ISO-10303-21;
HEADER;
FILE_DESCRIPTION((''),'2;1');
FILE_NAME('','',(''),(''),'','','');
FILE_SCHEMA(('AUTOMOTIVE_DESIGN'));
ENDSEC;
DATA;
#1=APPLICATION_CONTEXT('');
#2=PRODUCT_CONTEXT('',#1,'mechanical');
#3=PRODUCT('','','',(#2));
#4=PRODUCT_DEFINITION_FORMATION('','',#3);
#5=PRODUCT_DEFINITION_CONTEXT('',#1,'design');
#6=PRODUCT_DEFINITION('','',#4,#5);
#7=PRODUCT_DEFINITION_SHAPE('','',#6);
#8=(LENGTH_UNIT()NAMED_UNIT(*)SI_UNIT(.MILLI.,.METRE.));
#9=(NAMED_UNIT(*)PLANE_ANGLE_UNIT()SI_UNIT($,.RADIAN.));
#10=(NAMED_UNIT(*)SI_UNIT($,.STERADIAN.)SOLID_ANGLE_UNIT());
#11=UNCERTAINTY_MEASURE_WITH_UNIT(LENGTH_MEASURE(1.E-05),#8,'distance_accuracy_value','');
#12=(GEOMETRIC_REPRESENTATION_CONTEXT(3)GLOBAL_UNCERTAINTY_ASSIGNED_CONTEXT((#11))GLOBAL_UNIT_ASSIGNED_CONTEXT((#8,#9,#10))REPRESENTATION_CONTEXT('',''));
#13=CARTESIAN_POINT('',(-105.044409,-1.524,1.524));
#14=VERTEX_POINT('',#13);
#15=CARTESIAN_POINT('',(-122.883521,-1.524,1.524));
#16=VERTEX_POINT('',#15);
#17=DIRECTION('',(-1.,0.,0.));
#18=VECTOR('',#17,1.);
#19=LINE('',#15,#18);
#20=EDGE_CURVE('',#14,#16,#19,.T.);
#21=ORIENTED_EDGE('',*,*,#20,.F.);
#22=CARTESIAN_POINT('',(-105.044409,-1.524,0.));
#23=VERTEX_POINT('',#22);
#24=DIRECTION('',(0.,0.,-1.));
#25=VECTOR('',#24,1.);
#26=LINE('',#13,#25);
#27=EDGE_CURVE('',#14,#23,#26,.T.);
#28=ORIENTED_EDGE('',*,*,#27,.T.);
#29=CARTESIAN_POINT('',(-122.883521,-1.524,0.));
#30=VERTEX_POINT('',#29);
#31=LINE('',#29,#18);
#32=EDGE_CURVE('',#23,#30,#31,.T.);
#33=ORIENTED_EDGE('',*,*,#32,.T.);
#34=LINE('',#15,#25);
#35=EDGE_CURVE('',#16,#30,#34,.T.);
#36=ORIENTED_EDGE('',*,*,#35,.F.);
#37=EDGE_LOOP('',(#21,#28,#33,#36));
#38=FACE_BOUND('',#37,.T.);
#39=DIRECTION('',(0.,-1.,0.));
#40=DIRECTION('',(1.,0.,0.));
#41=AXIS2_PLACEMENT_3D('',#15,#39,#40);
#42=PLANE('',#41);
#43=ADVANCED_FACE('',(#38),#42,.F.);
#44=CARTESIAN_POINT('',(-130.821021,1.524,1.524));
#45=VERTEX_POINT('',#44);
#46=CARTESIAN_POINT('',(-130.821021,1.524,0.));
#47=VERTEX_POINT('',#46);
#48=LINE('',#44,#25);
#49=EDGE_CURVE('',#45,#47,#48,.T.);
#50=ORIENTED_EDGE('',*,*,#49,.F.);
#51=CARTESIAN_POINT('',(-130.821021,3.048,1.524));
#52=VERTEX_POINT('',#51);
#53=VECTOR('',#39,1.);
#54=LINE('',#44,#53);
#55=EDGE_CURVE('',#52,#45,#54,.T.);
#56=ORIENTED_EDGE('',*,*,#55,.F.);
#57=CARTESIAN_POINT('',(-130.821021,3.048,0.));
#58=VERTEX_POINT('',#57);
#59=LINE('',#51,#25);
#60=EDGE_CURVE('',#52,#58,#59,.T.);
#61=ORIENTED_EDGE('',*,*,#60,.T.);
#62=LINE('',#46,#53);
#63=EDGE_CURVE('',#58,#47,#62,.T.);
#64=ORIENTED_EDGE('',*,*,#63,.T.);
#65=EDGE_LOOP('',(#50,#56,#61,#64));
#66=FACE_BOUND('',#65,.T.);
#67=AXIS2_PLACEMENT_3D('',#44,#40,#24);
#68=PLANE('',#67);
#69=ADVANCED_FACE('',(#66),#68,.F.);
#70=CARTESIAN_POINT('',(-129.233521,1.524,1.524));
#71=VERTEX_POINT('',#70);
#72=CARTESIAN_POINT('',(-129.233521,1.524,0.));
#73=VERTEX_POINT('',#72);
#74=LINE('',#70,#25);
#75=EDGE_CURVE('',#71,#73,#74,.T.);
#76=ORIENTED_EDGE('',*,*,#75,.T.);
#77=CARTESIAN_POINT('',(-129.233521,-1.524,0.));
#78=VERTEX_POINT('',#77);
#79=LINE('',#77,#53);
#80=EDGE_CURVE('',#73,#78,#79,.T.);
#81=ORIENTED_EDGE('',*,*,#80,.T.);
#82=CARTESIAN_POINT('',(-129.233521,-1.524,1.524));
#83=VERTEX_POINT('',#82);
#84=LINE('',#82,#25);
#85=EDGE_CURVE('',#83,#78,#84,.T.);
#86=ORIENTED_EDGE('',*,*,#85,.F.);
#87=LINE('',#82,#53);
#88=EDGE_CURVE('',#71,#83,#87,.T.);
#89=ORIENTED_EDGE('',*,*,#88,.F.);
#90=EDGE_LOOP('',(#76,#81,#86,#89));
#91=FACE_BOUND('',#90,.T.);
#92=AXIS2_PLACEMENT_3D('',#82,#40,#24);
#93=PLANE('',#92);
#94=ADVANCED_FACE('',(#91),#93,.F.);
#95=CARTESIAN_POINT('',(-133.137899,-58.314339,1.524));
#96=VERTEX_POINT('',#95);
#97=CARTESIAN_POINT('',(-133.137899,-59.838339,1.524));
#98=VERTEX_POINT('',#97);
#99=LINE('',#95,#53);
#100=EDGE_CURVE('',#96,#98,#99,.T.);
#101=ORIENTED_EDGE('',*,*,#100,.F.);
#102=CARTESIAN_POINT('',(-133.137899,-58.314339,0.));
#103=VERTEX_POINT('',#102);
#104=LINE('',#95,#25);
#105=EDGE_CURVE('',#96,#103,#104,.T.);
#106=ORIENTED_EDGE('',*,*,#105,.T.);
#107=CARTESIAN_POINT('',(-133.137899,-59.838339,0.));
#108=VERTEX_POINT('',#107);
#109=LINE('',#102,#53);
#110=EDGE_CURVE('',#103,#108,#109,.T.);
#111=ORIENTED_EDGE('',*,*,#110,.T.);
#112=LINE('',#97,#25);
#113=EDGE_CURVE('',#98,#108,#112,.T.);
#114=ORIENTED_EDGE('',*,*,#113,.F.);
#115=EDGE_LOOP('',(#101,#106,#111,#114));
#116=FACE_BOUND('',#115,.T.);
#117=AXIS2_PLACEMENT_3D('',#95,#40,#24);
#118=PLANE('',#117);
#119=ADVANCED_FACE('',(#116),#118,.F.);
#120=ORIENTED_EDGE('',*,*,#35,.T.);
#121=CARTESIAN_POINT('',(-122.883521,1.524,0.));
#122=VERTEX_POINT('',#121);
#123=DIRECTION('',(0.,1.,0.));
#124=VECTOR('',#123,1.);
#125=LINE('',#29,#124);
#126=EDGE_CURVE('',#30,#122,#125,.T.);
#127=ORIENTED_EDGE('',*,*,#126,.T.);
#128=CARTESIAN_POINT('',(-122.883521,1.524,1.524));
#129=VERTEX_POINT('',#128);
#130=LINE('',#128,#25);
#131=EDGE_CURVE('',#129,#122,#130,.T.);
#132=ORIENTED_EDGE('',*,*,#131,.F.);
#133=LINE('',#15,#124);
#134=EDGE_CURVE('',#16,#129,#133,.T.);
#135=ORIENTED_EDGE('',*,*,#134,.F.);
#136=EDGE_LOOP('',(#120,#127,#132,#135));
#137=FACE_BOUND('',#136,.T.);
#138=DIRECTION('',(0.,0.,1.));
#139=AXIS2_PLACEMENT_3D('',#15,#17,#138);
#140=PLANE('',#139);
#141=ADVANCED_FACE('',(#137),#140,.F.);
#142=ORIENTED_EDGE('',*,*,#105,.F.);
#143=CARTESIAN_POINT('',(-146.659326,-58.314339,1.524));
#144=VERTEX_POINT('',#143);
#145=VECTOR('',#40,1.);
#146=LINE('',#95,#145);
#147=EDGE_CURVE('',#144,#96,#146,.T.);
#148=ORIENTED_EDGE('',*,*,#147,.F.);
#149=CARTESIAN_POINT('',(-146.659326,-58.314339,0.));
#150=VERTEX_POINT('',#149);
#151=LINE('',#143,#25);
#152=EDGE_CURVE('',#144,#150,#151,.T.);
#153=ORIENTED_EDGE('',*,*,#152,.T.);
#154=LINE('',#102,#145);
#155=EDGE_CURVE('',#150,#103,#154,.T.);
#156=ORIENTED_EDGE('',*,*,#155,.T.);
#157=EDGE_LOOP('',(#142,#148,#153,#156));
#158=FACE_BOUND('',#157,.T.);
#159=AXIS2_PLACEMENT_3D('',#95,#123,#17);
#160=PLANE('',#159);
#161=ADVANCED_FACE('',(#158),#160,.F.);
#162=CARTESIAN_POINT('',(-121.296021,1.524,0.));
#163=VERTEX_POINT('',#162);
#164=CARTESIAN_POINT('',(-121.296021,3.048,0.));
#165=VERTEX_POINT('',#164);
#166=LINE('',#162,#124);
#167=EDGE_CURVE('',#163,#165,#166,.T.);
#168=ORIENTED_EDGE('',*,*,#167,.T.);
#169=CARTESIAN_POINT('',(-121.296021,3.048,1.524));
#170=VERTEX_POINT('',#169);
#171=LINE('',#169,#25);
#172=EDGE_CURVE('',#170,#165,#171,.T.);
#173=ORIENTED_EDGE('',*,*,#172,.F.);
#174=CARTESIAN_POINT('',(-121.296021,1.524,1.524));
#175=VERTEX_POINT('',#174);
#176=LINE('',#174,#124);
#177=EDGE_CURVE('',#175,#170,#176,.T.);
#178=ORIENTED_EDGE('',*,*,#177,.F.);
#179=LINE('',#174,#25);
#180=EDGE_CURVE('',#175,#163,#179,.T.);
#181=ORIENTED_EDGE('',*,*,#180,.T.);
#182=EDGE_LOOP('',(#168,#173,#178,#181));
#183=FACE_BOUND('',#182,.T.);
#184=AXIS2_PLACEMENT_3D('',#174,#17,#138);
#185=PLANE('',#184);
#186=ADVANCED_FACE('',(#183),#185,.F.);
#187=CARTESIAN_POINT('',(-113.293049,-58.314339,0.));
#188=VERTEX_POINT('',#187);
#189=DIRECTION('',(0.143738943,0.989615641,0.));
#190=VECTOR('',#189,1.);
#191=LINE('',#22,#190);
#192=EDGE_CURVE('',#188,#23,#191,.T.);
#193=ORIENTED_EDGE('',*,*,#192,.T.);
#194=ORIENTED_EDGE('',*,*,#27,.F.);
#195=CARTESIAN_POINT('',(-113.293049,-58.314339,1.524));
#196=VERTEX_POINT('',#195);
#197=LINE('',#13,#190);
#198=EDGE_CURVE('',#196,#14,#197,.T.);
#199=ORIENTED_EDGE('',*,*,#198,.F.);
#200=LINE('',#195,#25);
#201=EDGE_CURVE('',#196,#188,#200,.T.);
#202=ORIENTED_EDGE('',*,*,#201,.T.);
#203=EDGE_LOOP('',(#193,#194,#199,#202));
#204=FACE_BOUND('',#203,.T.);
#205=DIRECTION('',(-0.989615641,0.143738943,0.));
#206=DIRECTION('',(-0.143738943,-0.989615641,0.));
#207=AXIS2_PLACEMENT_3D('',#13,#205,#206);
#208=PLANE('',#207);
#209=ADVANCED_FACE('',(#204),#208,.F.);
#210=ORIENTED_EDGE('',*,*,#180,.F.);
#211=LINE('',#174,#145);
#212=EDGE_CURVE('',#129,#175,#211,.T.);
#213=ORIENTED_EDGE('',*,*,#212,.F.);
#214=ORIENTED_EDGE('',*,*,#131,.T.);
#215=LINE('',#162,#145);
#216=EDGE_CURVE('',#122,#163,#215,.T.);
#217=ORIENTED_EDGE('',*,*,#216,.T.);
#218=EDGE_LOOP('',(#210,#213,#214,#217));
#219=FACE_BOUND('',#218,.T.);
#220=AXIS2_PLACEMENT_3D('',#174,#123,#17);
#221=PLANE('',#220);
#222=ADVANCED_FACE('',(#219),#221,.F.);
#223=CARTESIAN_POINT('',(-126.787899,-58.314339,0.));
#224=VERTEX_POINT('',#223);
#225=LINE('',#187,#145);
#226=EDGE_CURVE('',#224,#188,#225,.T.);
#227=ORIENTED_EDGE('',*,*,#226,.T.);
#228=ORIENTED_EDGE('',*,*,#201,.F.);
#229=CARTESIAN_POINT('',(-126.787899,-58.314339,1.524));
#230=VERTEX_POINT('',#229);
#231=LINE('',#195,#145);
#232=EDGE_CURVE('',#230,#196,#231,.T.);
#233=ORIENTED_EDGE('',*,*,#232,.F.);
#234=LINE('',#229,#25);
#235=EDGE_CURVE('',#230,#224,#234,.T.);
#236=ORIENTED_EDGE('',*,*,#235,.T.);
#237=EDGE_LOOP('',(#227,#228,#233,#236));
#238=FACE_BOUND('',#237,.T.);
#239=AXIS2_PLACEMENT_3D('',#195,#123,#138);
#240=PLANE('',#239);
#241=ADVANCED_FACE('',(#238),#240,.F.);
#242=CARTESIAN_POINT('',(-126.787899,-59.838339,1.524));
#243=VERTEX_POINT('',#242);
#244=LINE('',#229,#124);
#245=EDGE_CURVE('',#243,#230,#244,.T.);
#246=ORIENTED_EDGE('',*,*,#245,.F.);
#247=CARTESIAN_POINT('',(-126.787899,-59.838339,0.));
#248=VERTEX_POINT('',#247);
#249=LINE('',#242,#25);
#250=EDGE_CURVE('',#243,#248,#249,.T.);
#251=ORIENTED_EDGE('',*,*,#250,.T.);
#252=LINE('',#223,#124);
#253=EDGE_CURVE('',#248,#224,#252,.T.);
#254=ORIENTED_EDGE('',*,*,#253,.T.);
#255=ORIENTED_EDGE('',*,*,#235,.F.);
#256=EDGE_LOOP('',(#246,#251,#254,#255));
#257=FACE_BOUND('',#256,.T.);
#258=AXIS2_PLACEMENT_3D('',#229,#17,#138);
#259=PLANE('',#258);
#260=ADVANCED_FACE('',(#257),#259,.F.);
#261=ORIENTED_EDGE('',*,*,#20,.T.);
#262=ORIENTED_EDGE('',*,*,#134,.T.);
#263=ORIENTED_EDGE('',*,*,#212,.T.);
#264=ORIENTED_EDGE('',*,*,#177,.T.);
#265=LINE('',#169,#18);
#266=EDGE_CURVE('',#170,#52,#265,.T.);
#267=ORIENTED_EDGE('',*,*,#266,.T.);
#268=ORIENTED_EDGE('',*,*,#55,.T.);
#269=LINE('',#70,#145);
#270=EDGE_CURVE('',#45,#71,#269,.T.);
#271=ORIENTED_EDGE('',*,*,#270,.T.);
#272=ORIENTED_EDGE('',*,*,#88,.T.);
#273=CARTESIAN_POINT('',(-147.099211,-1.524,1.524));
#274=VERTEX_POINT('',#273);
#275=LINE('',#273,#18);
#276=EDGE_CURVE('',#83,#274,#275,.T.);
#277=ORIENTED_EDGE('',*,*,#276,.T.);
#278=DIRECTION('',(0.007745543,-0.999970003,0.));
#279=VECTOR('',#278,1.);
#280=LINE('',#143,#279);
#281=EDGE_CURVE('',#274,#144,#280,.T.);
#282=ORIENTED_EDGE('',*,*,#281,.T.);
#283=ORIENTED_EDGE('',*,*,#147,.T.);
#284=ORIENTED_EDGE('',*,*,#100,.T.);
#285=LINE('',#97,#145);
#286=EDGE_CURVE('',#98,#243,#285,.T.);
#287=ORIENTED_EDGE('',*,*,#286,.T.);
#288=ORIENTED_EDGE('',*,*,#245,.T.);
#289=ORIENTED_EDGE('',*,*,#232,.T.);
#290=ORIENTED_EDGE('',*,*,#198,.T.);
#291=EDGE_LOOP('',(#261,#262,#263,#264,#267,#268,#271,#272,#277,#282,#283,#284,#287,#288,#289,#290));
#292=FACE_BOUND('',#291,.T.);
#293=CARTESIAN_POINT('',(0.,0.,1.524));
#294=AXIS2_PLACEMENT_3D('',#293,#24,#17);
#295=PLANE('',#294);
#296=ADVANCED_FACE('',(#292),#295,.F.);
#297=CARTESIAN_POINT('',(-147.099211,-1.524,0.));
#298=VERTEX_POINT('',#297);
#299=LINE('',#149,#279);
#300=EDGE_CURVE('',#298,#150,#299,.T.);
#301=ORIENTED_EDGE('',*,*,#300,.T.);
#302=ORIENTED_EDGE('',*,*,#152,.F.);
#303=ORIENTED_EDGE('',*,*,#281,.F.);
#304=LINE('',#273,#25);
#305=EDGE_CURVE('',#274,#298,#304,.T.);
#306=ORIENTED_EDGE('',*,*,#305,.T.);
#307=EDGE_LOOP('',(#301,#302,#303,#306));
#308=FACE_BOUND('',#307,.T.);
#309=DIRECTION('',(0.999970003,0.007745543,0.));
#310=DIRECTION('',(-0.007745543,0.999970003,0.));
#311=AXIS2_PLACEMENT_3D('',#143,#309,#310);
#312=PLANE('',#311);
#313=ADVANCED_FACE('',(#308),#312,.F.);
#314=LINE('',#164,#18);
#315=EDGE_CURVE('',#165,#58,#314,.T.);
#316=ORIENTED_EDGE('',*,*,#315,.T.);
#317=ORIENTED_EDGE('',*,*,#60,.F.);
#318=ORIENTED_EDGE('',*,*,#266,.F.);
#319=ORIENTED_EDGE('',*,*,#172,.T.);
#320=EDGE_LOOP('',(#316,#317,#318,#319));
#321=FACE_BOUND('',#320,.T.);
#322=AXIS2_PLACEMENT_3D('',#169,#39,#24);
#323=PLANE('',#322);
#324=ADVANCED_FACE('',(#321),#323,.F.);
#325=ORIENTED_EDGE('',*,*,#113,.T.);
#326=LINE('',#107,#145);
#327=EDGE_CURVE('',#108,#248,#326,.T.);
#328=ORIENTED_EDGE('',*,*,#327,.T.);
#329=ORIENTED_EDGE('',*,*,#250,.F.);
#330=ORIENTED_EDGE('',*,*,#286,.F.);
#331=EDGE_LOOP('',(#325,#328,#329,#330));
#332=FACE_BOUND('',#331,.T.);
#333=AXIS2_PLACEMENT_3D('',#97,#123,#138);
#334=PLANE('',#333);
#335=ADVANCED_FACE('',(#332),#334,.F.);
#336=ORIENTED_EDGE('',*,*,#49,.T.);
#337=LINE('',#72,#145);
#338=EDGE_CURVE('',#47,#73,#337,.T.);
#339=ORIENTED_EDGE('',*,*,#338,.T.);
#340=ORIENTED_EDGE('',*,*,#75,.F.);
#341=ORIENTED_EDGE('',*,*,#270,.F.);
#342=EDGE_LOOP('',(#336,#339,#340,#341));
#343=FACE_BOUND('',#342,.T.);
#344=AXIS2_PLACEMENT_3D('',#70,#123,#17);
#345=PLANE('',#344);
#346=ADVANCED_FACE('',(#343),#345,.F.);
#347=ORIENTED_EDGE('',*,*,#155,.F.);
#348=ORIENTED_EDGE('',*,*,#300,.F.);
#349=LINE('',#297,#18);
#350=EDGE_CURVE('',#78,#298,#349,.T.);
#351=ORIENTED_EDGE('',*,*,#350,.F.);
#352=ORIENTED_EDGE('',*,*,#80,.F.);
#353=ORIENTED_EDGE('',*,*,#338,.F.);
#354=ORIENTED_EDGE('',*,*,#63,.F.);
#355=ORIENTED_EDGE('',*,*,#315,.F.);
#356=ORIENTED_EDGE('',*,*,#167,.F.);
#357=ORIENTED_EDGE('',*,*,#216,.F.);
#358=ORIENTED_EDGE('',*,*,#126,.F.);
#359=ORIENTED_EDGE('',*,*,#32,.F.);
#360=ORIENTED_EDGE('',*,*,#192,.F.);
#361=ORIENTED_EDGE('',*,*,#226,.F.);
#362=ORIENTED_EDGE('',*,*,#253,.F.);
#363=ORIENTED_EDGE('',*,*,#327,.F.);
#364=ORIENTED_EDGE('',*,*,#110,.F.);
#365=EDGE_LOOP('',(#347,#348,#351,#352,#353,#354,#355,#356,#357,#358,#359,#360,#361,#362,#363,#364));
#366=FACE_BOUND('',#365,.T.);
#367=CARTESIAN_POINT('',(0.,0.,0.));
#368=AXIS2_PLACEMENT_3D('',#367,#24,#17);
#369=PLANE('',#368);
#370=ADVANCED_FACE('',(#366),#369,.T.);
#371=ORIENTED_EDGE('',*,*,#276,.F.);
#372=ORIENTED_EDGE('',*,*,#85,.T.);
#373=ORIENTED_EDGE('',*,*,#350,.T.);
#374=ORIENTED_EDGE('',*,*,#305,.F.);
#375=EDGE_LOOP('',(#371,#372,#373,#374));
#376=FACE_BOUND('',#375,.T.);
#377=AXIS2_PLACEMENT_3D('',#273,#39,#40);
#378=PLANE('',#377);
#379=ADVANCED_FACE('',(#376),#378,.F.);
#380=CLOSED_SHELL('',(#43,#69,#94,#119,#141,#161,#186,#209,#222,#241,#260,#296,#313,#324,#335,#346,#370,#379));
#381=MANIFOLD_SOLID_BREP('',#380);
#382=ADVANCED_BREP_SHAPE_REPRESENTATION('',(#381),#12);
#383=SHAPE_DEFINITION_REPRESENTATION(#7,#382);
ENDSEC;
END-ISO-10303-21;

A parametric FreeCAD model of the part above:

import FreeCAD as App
import Part
import Sketcher
from FreeCAD import Vector
Q = App.Units.Quantity

doc = App.newDocument("Part")
params = doc.addObject("Spreadsheet::Sheet", "Params")
for row, (alias, value) in enumerate([
    ("sketch1_width", "0.25 in"),
    ("sketch1_height", "0.12 in"),
    ("sketch1_height2", "0.06 in"),
    ("sketch1_width2", "0.0625 in"),
    ("sketch1_width3", "0.375 in"),
    ("pad1_length", "0.06 in"),
], start=1):
    params.set(f"A{row}", alias)
    params.set(f"B{row}", "=" + value)
    params.setAlias(f"B{row}", alias)

body = doc.addObject("PartDesign::Body", "Body")

sketch1 = body.newObject("Sketcher::SketchObject", "Sketch")
sketch1.AttachmentSupport = (doc.getObject("XY_Plane"), [""])
sketch1.MapMode = "FlatFace"
sketch1.addGeometry(Part.LineSegment(Vector(-113.3, -58.3, 0), Vector(-105, -1.5, 0)), False)
sketch1.addGeometry(Part.LineSegment(Vector(-105, -1.5, 0), Vector(-122.9, -1.5, 0)), False)
sketch1.addGeometry(Part.LineSegment(Vector(-122.9, -1.5, 0), Vector(-122.9, 1.5, 0)), False)
sketch1.addGeometry(Part.LineSegment(Vector(-122.9, 1.5, 0), Vector(-121.3, 1.5, 0)), False)
sketch1.addGeometry(Part.LineSegment(Vector(-121.3, 1.5, 0), Vector(-121.3, 3, 0)), False)
sketch1.addGeometry(Part.LineSegment(Vector(-121.3, 3, 0), Vector(-130.8, 3, 0)), False)
sketch1.addGeometry(Part.LineSegment(Vector(-130.8, 3, 0), Vector(-130.8, 1.5, 0)), False)
sketch1.addGeometry(Part.LineSegment(Vector(-130.8, 1.5, 0), Vector(-129.2, 1.5, 0)), False)
sketch1.addGeometry(Part.LineSegment(Vector(-129.2, 1.5, 0), Vector(-129.2, -1.5, 0)), False)
sketch1.addGeometry(Part.LineSegment(Vector(-129.2, -1.5, 0), Vector(-147.1, -1.5, 0)), False)
sketch1.addGeometry(Part.LineSegment(Vector(-147.1, -1.5, 0), Vector(-146.7, -58.3, 0)), False)
sketch1.addGeometry(Part.LineSegment(Vector(-146.7, -58.3, 0), Vector(-133.1, -58.3, 0)), False)
sketch1.addGeometry(Part.LineSegment(Vector(-133.1, -58.3, 0), Vector(-133.1, -59.8, 0)), False)
sketch1.addGeometry(Part.LineSegment(Vector(-133.1, -59.8, 0), Vector(-126.8, -59.8, 0)), False)
sketch1.addGeometry(Part.LineSegment(Vector(-126.8, -59.8, 0), Vector(-126.8, -58.3, 0)), False)
sketch1.addGeometry(Part.LineSegment(Vector(-126.8, -58.3, 0), Vector(-113.3, -58.3, 0)), False)
sketch1.addConstraint(Sketcher.Constraint("Coincident", 0, 2, 1, 1))
sketch1.addConstraint(Sketcher.Constraint("Coincident", 1, 2, 2, 1))
sketch1.addConstraint(Sketcher.Constraint("Coincident", 2, 2, 3, 1))
sketch1.addConstraint(Sketcher.Constraint("Coincident", 3, 2, 4, 1))
sketch1.addConstraint(Sketcher.Constraint("Coincident", 4, 2, 5, 1))
sketch1.addConstraint(Sketcher.Constraint("Coincident", 5, 2, 6, 1))
sketch1.addConstraint(Sketcher.Constraint("Coincident", 6, 2, 7, 1))
sketch1.addConstraint(Sketcher.Constraint("Coincident", 7, 2, 8, 1))
sketch1.addConstraint(Sketcher.Constraint("Coincident", 8, 2, 9, 1))
sketch1.addConstraint(Sketcher.Constraint("Coincident", 9, 2, 10, 1))
sketch1.addConstraint(Sketcher.Constraint("Coincident", 10, 2, 11, 1))
sketch1.addConstraint(Sketcher.Constraint("Coincident", 11, 2, 12, 1))
sketch1.addConstraint(Sketcher.Constraint("Coincident", 12, 2, 13, 1))
sketch1.addConstraint(Sketcher.Constraint("Coincident", 13, 2, 14, 1))
sketch1.addConstraint(Sketcher.Constraint("Coincident", 14, 2, 15, 1))
sketch1.addConstraint(Sketcher.Constraint("Coincident", 15, 2, 0, 1))
sketch1.addConstraint(Sketcher.Constraint("Horizontal", 1))
sketch1.addConstraint(Sketcher.Constraint("Vertical", 2))
sketch1.addConstraint(Sketcher.Constraint("Horizontal", 3))
sketch1.addConstraint(Sketcher.Constraint("Vertical", 4))
sketch1.addConstraint(Sketcher.Constraint("Horizontal", 5))
sketch1.addConstraint(Sketcher.Constraint("Vertical", 6))
sketch1.addConstraint(Sketcher.Constraint("Horizontal", 7))
sketch1.addConstraint(Sketcher.Constraint("Vertical", 8))
sketch1.addConstraint(Sketcher.Constraint("Horizontal", 9))
sketch1.addConstraint(Sketcher.Constraint("Horizontal", 11))
sketch1.addConstraint(Sketcher.Constraint("Vertical", 12))
sketch1.addConstraint(Sketcher.Constraint("Horizontal", 13))
sketch1.addConstraint(Sketcher.Constraint("Vertical", 14))
sketch1.addConstraint(Sketcher.Constraint("Horizontal", 15))
sketch1.addConstraint(Sketcher.Constraint("Horizontal", 3, 2, 6, 2))
sketch1.addConstraint(Sketcher.Constraint("Horizontal", 1, 2, 8, 2))
sketch1.addConstraint(Sketcher.Constraint("Horizontal", 11, 2, 14, 2))
sketch1.addConstraint(Sketcher.Constraint("Equal", 3, 7))
sketch1.addConstraint(Sketcher.Constraint("Equal", 6, 12))
sketch1.addConstraint(Sketcher.Constraint("DistanceX", 13, 1, 13, 2, Q("0.25 in")))
sketch1.addConstraint(Sketcher.Constraint("DistanceY", 2, 1, 2, 2, Q("0.12 in")))
sketch1.addConstraint(Sketcher.Constraint("DistanceY", 4, 1, 4, 2, Q("0.06 in")))
sketch1.addConstraint(Sketcher.Constraint("DistanceX", 3, 1, 3, 2, Q("0.0625 in")))
sketch1.addConstraint(Sketcher.Constraint("DistanceX", 5, 2, 5, 1, Q("0.375 in")))
sketch1.addConstraint(Sketcher.Constraint("DistanceY", 0, 2, -1, 1, Q("0.06 in")))
sketch1.addConstraint(Sketcher.Constraint("DistanceX", 9, 2, 9, 1, Q("17.865689 mm")))
sketch1.addConstraint(Sketcher.Constraint("DistanceX", 15, 1, 15, 2, Q("13.49485 mm")))
sketch1.addConstraint(Sketcher.Constraint("DistanceX", 11, 2, -1, 1, Q("133.137899 mm")))
sketch1.addConstraint(Sketcher.Constraint("Distance", 0, Q("57.386258 mm")))
sketch1.addConstraint(Sketcher.Constraint("DistanceX", 1, 2, 1, 1, Q("17.839113 mm")))
sketch1.addConstraint(Sketcher.Constraint("DistanceX", 11, 1, 11, 2, Q("13.521427 mm")))
sketch1.addConstraint(Sketcher.Constraint("DistanceX", 0, 2, -1, 1, Q("105.044409 mm")))
sketch1.setExpression("Constraints[35]", "Params.sketch1_width")
sketch1.setExpression("Constraints[36]", "Params.sketch1_height")
sketch1.setExpression("Constraints[37]", "Params.sketch1_height2")
sketch1.setExpression("Constraints[38]", "Params.sketch1_width2")
sketch1.setExpression("Constraints[39]", "Params.sketch1_width3")
pad1 = body.newObject("PartDesign::Pad", "Pad")
pad1.Profile = sketch1
pad1.setExpression("Length", "Params.pad1_length")

doc.recompute()
